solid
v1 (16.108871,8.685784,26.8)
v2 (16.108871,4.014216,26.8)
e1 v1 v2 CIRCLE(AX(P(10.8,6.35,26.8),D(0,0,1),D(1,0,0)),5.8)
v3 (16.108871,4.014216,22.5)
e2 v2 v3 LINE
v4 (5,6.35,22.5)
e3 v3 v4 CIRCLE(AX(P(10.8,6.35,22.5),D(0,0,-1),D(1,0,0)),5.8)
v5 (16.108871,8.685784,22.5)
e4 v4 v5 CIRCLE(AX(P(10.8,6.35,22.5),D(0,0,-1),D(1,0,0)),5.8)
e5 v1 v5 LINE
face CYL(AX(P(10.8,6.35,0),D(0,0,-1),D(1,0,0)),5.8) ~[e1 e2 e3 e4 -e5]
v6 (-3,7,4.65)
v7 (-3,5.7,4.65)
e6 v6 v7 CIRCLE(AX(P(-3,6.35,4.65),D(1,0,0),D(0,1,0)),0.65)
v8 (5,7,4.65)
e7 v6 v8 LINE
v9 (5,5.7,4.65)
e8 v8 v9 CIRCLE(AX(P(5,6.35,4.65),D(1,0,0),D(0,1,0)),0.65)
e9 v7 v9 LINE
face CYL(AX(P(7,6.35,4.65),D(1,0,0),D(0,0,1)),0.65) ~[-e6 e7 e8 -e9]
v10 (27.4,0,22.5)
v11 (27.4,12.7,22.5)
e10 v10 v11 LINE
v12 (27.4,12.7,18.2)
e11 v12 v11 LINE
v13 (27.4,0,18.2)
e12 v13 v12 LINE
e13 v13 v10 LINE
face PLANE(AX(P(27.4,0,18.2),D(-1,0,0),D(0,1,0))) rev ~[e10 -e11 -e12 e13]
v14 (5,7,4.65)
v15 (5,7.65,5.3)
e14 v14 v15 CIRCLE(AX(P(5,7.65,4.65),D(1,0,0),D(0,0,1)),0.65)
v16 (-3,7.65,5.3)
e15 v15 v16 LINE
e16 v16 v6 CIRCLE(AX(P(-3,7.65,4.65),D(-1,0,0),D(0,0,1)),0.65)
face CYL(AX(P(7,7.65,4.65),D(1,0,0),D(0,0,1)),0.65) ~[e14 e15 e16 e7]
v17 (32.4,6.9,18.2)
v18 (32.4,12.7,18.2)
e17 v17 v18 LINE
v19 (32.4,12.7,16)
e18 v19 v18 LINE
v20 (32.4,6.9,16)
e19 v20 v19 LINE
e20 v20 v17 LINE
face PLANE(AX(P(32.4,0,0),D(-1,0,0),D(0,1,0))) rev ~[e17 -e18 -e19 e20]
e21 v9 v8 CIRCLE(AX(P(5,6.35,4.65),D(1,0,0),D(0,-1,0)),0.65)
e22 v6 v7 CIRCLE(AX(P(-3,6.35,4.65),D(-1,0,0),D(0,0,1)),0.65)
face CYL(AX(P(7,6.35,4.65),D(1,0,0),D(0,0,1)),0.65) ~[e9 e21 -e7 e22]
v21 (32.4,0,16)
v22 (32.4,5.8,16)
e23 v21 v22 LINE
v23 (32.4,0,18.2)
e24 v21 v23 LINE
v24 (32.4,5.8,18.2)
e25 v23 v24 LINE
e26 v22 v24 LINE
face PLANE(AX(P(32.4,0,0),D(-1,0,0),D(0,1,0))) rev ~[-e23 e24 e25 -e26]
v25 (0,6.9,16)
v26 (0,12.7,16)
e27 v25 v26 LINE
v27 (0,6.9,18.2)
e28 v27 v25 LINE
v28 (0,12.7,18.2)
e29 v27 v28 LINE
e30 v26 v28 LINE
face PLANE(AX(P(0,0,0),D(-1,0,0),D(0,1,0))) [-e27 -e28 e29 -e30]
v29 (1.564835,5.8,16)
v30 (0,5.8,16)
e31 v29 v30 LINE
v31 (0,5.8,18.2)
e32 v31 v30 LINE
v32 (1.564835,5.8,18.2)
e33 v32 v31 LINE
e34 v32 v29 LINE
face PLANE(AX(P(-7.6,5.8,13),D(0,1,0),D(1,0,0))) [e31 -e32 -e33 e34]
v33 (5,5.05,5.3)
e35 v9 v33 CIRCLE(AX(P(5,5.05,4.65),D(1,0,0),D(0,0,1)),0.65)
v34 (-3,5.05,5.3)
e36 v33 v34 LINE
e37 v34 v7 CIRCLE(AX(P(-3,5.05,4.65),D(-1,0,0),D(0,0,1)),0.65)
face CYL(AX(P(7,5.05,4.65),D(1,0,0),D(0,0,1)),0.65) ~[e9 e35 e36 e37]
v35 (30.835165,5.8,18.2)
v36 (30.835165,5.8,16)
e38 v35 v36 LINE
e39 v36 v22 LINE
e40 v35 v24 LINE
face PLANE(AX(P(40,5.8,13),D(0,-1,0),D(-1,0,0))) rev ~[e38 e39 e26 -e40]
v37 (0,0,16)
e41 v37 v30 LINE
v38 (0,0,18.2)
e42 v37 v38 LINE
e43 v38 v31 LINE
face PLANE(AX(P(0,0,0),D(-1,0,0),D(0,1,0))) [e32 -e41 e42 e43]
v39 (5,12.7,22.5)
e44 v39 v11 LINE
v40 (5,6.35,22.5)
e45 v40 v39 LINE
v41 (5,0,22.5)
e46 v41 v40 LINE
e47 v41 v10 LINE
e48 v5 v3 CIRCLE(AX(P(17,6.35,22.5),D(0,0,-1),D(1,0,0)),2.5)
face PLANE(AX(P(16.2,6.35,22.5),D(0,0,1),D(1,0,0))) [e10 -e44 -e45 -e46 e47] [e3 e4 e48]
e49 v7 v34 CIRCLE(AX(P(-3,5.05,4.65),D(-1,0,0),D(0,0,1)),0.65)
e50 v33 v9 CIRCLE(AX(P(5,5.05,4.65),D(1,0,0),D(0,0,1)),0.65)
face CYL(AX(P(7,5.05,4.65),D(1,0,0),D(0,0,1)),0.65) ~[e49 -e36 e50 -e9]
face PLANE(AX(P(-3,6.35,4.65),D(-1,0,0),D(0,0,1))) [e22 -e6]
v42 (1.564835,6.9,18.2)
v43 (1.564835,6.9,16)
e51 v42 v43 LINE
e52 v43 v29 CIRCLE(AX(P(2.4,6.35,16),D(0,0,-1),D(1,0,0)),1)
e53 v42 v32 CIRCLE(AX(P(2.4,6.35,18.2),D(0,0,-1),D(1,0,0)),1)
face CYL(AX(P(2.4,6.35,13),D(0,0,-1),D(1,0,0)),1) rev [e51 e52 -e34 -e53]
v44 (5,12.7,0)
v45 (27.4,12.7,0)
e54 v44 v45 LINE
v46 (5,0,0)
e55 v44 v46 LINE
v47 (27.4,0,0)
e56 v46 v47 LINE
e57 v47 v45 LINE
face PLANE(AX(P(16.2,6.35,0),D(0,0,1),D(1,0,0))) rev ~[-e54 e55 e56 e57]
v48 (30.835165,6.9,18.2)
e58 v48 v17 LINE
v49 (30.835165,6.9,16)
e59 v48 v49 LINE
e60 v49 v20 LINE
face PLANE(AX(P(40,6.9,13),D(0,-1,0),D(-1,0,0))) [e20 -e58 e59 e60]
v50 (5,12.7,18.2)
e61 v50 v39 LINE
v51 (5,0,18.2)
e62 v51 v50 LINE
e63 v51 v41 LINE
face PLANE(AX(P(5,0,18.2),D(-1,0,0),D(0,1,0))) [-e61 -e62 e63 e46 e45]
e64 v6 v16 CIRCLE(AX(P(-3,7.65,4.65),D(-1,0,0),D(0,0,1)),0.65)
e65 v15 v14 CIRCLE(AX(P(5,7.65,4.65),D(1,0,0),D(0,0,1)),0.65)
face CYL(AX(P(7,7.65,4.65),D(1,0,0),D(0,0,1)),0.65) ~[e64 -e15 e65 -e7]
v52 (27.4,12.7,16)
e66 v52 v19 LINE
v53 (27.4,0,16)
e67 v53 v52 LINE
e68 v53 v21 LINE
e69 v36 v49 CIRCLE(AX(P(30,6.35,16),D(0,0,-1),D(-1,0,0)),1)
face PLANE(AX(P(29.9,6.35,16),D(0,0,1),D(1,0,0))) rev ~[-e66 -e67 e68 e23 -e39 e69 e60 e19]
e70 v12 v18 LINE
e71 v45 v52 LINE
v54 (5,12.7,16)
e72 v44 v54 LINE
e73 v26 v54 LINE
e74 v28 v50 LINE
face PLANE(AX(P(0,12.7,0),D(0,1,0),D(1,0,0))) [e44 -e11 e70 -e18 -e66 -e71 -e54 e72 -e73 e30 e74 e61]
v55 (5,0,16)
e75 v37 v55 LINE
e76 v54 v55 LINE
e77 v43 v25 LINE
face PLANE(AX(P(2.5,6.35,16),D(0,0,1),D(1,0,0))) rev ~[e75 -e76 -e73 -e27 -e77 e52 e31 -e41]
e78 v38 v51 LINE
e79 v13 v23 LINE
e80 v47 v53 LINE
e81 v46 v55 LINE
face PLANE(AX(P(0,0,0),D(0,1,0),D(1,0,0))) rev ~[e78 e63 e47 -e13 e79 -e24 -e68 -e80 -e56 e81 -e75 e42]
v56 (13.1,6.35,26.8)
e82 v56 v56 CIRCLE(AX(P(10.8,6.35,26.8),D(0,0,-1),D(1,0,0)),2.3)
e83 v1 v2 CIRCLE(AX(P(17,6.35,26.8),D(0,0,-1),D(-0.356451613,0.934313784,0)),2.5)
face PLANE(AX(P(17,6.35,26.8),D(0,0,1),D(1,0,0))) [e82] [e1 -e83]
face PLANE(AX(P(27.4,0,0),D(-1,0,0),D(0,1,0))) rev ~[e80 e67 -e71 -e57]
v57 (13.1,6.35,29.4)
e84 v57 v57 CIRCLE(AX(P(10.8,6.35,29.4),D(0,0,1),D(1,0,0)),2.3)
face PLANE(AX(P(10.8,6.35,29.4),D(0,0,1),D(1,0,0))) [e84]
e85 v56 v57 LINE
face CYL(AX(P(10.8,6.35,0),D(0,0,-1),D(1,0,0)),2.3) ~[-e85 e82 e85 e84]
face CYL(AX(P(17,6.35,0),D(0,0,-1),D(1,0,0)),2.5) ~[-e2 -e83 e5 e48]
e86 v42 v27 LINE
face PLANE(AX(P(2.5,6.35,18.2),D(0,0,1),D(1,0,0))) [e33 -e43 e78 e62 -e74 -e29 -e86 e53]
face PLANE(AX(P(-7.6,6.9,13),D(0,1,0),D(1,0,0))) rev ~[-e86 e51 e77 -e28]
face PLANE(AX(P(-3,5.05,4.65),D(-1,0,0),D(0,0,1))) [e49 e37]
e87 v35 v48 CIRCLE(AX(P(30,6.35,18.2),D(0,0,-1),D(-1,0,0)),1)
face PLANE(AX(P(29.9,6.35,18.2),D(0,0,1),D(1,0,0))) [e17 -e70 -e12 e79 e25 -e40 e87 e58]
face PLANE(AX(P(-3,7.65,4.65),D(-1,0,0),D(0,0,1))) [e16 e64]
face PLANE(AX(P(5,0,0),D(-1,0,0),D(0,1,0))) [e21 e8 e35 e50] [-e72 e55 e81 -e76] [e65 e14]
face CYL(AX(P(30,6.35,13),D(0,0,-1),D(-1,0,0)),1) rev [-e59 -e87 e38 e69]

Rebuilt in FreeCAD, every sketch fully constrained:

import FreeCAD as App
import Part
import Sketcher


def add_polygon(sketch, points):
    """Adds a closed chain of lines whose ends are joined by coincident constraints."""
    first, n = sketch.GeometryCount, len(points)
    for a, b in zip(points, points[1:] + points[:1]):
        sketch.addGeometry(Part.LineSegment(App.Vector(*a, 0), App.Vector(*b, 0)), False)
    for i in range(n):
        sketch.addConstraint(Sketcher.Constraint("Coincident", first + i, 2, first + (i + 1) % n, 1))

doc = App.newDocument("Part")
body = doc.addObject("PartDesign::Body", "Body")

# Sketch on XY plane
sketch1 = body.newObject("Sketcher::SketchObject", "Sketch")
sketch1.AttachmentSupport = (doc.getObject("XY_Plane"), [""])
sketch1.MapMode = "FlatFace"
sketch1.addGeometry(Part.Circle(App.Vector(0, 0, 0), App.Vector(0, 0, 1), 0.7), False)
sketch1.addConstraint([
    Sketcher.Constraint("Coincident", 0, 3, -1, 1),
    Sketcher.Constraint("Diameter", 0, 1.3),
])
pad1 = body.newObject("PartDesign::Pad", "Pad")
pad1.Profile = sketch1
pad1.Length = 10
body2 = doc.addObject("PartDesign::Body", "Body001")
doc.recompute()

body.Placement = App.Placement(App.Vector(0, 0, 0), App.Rotation(App.Vector(0, 1, 0), 270))
boolean = body2.newObject("PartDesign::Boolean", "Boolean")
boolean.Type = "Fuse"
boolean.addObjects([body])
body3 = doc.addObject("PartDesign::Body", "Body002")

# Sketch on XY plane
sketch2 = body3.newObject("Sketcher::SketchObject", "Sketch001")
sketch2.AttachmentSupport = (doc.getObject("XY_Plane002"), [""])
sketch2.MapMode = "FlatFace"
sketch2.addGeometry(Part.Circle(App.Vector(0, 0, 0), App.Vector(0, 0, 1), 0.7), False)
sketch2.addConstraint([
    Sketcher.Constraint("Coincident", 0, 3, -1, 1),
    Sketcher.Constraint("Diameter", 0, 1.3),
])
pad2 = body3.newObject("PartDesign::Pad", "Pad001")
pad2.Profile = sketch2
pad2.Length = 10
body4 = doc.addObject("PartDesign::Body", "Body003")
doc.recompute()

body3.Placement = App.Placement(App.Vector(0, 0, 0), App.Rotation(App.Vector(0, 1, 0), 270))
boolean2 = body4.newObject("PartDesign::Boolean", "Boolean001")
boolean2.Type = "Fuse"
boolean2.addObjects([body3])
body5 = doc.addObject("PartDesign::Body", "Body004")
doc.recompute()

body4.Placement = App.Placement(App.Vector(0, 1.3, 0), App.Rotation(App.Vector(0, 0, 1), 0))
boolean3 = body5.newObject("PartDesign::Boolean", "Boolean002")
boolean3.Type = "Fuse"
boolean3.addObjects([body4])
body6 = doc.addObject("PartDesign::Body", "Body005")

# Sketch on XY plane
sketch3 = body6.newObject("Sketcher::SketchObject", "Sketch002")
sketch3.AttachmentSupport = (doc.getObject("XY_Plane005"), [""])
sketch3.MapMode = "FlatFace"
sketch3.addGeometry(Part.Circle(App.Vector(0, 0, 0), App.Vector(0, 0, 1), 0.7), False)
sketch3.addConstraint([
    Sketcher.Constraint("Coincident", 0, 3, -1, 1),
    Sketcher.Constraint("Diameter", 0, 1.3),
])
pad3 = body6.newObject("PartDesign::Pad", "Pad002")
pad3.Profile = sketch3
pad3.Length = 10
body7 = doc.addObject("PartDesign::Body", "Body006")
doc.recompute()

body6.Placement = App.Placement(App.Vector(0, 0, 0), App.Rotation(App.Vector(0, 1, 0), 270))
boolean4 = body7.newObject("PartDesign::Boolean", "Boolean003")
boolean4.Type = "Fuse"
boolean4.addObjects([body6])
body8 = doc.addObject("PartDesign::Body", "Body007")
body8.AllowCompound = True
doc.recompute()

body7.Placement = App.Placement(App.Vector(0, -1.3, 0), App.Rotation(App.Vector(0, 0, 1), 0))
boolean5 = body8.newObject("PartDesign::Boolean", "Boolean004")
boolean5.Type = "Fuse"
boolean5.addObjects([body7])
doc.recompute()

boolean6 = body8.newObject("PartDesign::Boolean", "Boolean005")
boolean6.Type = "Fuse"
boolean6.addObjects([body2])
doc.recompute()

boolean7 = body8.newObject("PartDesign::Boolean", "Boolean006")
boolean7.Type = "Fuse"
boolean7.addObjects([body5])
body9 = doc.addObject("PartDesign::Body", "Body008")
body9.AllowCompound = True
doc.recompute()

body8.Placement = App.Placement(App.Vector(7, 6.35, 4.65), App.Rotation(App.Vector(0, 0, 1), 0))
boolean8 = body9.newObject("PartDesign::Boolean", "Boolean007")
boolean8.Type = "Fuse"
boolean8.addObjects([body8])
body10 = doc.addObject("PartDesign::Body", "Body009")

# Sketch on XY plane
sketch4 = body10.newObject("Sketcher::SketchObject", "Sketch003")
sketch4.AttachmentSupport = (doc.getObject("XY_Plane009"), [""])
sketch4.MapMode = "FlatFace"
sketch4.addGeometry(Part.Circle(App.Vector(0, 0, 0), App.Vector(0, 0, 1), 1), False)
sketch4.addConstraint([
    Sketcher.Constraint("Coincident", 0, 3, -1, 1),
    Sketcher.Constraint("Diameter", 0, 2.0),
])
pad4 = body10.newObject("PartDesign::Pad", "Pad003")
pad4.Profile = sketch4
pad4.Length = 10
body11 = doc.addObject("PartDesign::Body", "Body010")

# Sketch on XY plane
sketch5 = body11.newObject("Sketcher::SketchObject", "Sketch004")
sketch5.AttachmentSupport = (doc.getObject("XY_Plane010"), [""])
sketch5.MapMode = "FlatFace"
add_polygon(sketch5, [(-10, 0.6), (-10, -0.6), (0, -0.6), (0, 0.6)])  # lines 0-3
sketch5.addConstraint([
    Sketcher.Constraint("Vertical", 0),
    Sketcher.Constraint("Horizontal", 1),
    Sketcher.Constraint("Vertical", 2),
    Sketcher.Constraint("Horizontal", 3),
    Sketcher.Constraint("Symmetric", 1, 2, 2, 2, -1, 1),
    Sketcher.Constraint("DistanceX", 1, 1, 1, 2, 10.0),
    Sketcher.Constraint("DistanceY", 0, 2, 0, 1, 1.1),
])
pad5 = body11.newObject("PartDesign::Pad", "Pad004")
pad5.Profile = sketch5
pad5.Length = 10
doc.recompute()

boolean9 = body11.newObject("PartDesign::Boolean", "Boolean008")
boolean9.Type = "Fuse"
boolean9.addObjects([body10])
body12 = doc.addObject("PartDesign::Body", "Body011")
doc.recompute()

body11.Placement = App.Placement(App.Vector(2.4, 0, 0), App.Rotation(App.Vector(0, 0, 1), 0))
boolean10 = body12.newObject("PartDesign::Boolean", "Boolean009")
boolean10.Type = "Fuse"
boolean10.addObjects([body11])
body13 = doc.addObject("PartDesign::Body", "Body012")

# Sketch on XY plane
sketch6 = body13.newObject("Sketcher::SketchObject", "Sketch005")
sketch6.AttachmentSupport = (doc.getObject("XY_Plane012"), [""])
sketch6.MapMode = "FlatFace"
sketch6.addGeometry(Part.Circle(App.Vector(0, 0, 0), App.Vector(0, 0, 1), 1), False)
sketch6.addConstraint([
    Sketcher.Constraint("Coincident", 0, 3, -1, 1),
    Sketcher.Constraint("Diameter", 0, 2.0),
])
pad6 = body13.newObject("PartDesign::Pad", "Pad005")
pad6.Profile = sketch6
pad6.Length = 10
body14 = doc.addObject("PartDesign::Body", "Body013")

# Sketch on XY plane
sketch7 = body14.newObject("Sketcher::SketchObject", "Sketch006")
sketch7.AttachmentSupport = (doc.getObject("XY_Plane013"), [""])
sketch7.MapMode = "FlatFace"
add_polygon(sketch7, [(-10, 0.6), (-10, -0.6), (0, -0.6), (0, 0.6)])  # lines 0-3
sketch7.addConstraint([
    Sketcher.Constraint("Vertical", 0),
    Sketcher.Constraint("Horizontal", 1),
    Sketcher.Constraint("Vertical", 2),
    Sketcher.Constraint("Horizontal", 3),
    Sketcher.Constraint("Symmetric", 1, 2, 2, 2, -1, 1),
    Sketcher.Constraint("DistanceX", 1, 1, 1, 2, 10.0),
    Sketcher.Constraint("DistanceY", 0, 2, 0, 1, 1.1),
])
pad7 = body14.newObject("PartDesign::Pad", "Pad006")
pad7.Profile = sketch7
pad7.Length = 10
doc.recompute()

boolean11 = body14.newObject("PartDesign::Boolean", "Boolean010")
boolean11.Type = "Fuse"
boolean11.addObjects([body13])
body15 = doc.addObject("PartDesign::Body", "Body014")
body15.AllowCompound = True
doc.recompute()

body14.Placement = App.Placement(App.Vector(30, 0, 0), App.Rotation(App.Vector(0, 0, 1), 180))
boolean12 = body15.newObject("PartDesign::Boolean", "Boolean011")
boolean12.Type = "Fuse"
boolean12.addObjects([body14])
doc.recompute()

boolean13 = body15.newObject("PartDesign::Boolean", "Boolean012")
boolean13.Type = "Fuse"
boolean13.addObjects([body12])
body16 = doc.addObject("PartDesign::Body", "Body015")
body16.AllowCompound = True
doc.recompute()

body15.Placement = App.Placement(App.Vector(0, 6.35, 13), App.Rotation(App.Vector(0, 0, 1), 0))
boolean14 = body16.newObject("PartDesign::Boolean", "Boolean013")
boolean14.Type = "Fuse"
boolean14.addObjects([body15])
body17 = doc.addObject("PartDesign::Body", "Body016")

# Sketch on XY plane
sketch8 = body17.newObject("Sketcher::SketchObject", "Sketch007")
sketch8.AttachmentSupport = (doc.getObject("XY_Plane016"), [""])
sketch8.MapMode = "FlatFace"
add_polygon(sketch8, [(27, 13), (27, 0), (32, 0), (32, 13)])  # lines 0-3
sketch8.addConstraint([
    Sketcher.Constraint("Vertical", 0),
    Sketcher.Constraint("Horizontal", 1),
    Sketcher.Constraint("Vertical", 2),
    Sketcher.Constraint("Horizontal", 3),
    Sketcher.Constraint("PointOnObject", 0, 2, -1),
    Sketcher.Constraint("DistanceX", 1, 1, 1, 2, 5.0),
    Sketcher.Constraint("DistanceY", 0, 2, 0, 1, 12.7),
    Sketcher.Constraint("DistanceX", -1, 1, 0, 2, 27.4),
])
pad8 = body17.newObject("PartDesign::Pad", "Pad007")
pad8.Profile = sketch8
pad8.Length = 4.3
body18 = doc.addObject("PartDesign::Body", "Body017")
body18.AllowCompound = True

# Sketch on XY plane
sketch9 = body18.newObject("Sketcher::SketchObject", "Sketch008")
sketch9.AttachmentSupport = (doc.getObject("XY_Plane017"), [""])
sketch9.MapMode = "FlatFace"
add_polygon(sketch9, [(0, 13), (0, 0), (5, 0), (5, 13)])  # lines 0-3
sketch9.addConstraint([
    Sketcher.Constraint("Vertical", 0),
    Sketcher.Constraint("Horizontal", 1),
    Sketcher.Constraint("Vertical", 2),
    Sketcher.Constraint("Horizontal", 3),
    Sketcher.Constraint("Coincident", 0, 2, -1, 1),
    Sketcher.Constraint("DistanceX", 1, 1, 1, 2, 5.0),
    Sketcher.Constraint("DistanceY", 0, 2, 0, 1, 12.7),
])
pad9 = body18.newObject("PartDesign::Pad", "Pad008")
pad9.Profile = sketch9
pad9.Length = 4.3
doc.recompute()

boolean15 = body18.newObject("PartDesign::Boolean", "Boolean014")
boolean15.Type = "Fuse"
boolean15.addObjects([body17])
body19 = doc.addObject("PartDesign::Body", "Body018")
body19.AllowCompound = True
doc.recompute()

body18.Placement = App.Placement(App.Vector(0, 0, 18.2), App.Rotation(App.Vector(0, 0, 1), 0))
boolean16 = body19.newObject("PartDesign::Boolean", "Boolean015")
boolean16.Type = "Fuse"
boolean16.addObjects([body18])
body20 = doc.addObject("PartDesign::Body", "Body019")

# Sketch on XY plane
sketch10 = body20.newObject("Sketcher::SketchObject", "Sketch009")
sketch10.AttachmentSupport = (doc.getObject("XY_Plane019"), [""])
sketch10.MapMode = "FlatFace"
add_polygon(sketch10, [(0, 13), (0, 0), (5, 0), (5, 13)])  # lines 0-3
sketch10.addConstraint([
    Sketcher.Constraint("Vertical", 0),
    Sketcher.Constraint("Horizontal", 1),
    Sketcher.Constraint("Vertical", 2),
    Sketcher.Constraint("Horizontal", 3),
    Sketcher.Constraint("Coincident", 0, 2, -1, 1),
    Sketcher.Constraint("DistanceX", 1, 1, 1, 2, 5.0),
    Sketcher.Constraint("DistanceY", 0, 2, 0, 1, 12.7),
])
pad10 = body20.newObject("PartDesign::Pad", "Pad009")
pad10.Profile = sketch10
pad10.Length = 16
body21 = doc.addObject("PartDesign::Body", "Body020")

# Sketch on XY plane
sketch11 = body21.newObject("Sketcher::SketchObject", "Sketch010")
sketch11.AttachmentSupport = (doc.getObject("XY_Plane020"), [""])
sketch11.MapMode = "FlatFace"
add_polygon(sketch11, [(27, 13), (27, 0), (32, 0), (32, 13)])  # lines 0-3
sketch11.addConstraint([
    Sketcher.Constraint("Vertical", 0),
    Sketcher.Constraint("Horizontal", 1),
    Sketcher.Constraint("Vertical", 2),
    Sketcher.Constraint("Horizontal", 3),
    Sketcher.Constraint("PointOnObject", 0, 2, -1),
    Sketcher.Constraint("DistanceX", 1, 1, 1, 2, 5.0),
    Sketcher.Constraint("DistanceY", 0, 2, 0, 1, 12.7),
    Sketcher.Constraint("DistanceX", -1, 1, 0, 2, 27.4),
])
pad11 = body21.newObject("PartDesign::Pad", "Pad010")
pad11.Profile = sketch11
pad11.Length = 16
body22 = doc.addObject("PartDesign::Body", "Body021")

# Sketch on XY plane
sketch12 = body22.newObject("Sketcher::SketchObject", "Sketch011")
sketch12.AttachmentSupport = (doc.getObject("XY_Plane021"), [""])
sketch12.MapMode = "FlatFace"
add_polygon(sketch12, [(0, 13), (0, 0), (32, 0), (32, 13)])  # lines 0-3
sketch12.addConstraint([
    Sketcher.Constraint("Vertical", 0),
    Sketcher.Constraint("Horizontal", 1),
    Sketcher.Constraint("Vertical", 2),
    Sketcher.Constraint("Horizontal", 3),
    Sketcher.Constraint("Coincident", 0, 2, -1, 1),
    Sketcher.Constraint("DistanceX", 1, 1, 1, 2, 32.4),
    Sketcher.Constraint("DistanceY", 0, 2, 0, 1, 12.7),
])
pad12 = body22.newObject("PartDesign::Pad", "Pad011")
pad12.Profile = sketch12
pad12.Length = 22.5
doc.recompute()

boolean17 = body22.newObject("PartDesign::Boolean", "Boolean016")
boolean17.Type = "Cut"
boolean17.addObjects([body21])
doc.recompute()

boolean18 = body22.newObject("PartDesign::Boolean", "Boolean017")
boolean18.Type = "Cut"
boolean18.addObjects([body20])
doc.recompute()

boolean19 = body22.newObject("PartDesign::Boolean", "Boolean018")
boolean19.Type = "Cut"
boolean19.addObjects([body19])
doc.recompute()

boolean20 = body22.newObject("PartDesign::Boolean", "Boolean019")
boolean20.Type = "Cut"
boolean20.addObjects([body16])
body23 = doc.addObject("PartDesign::Body", "Body022")

# Sketch on XY plane
sketch13 = body23.newObject("Sketcher::SketchObject", "Sketch012")
sketch13.AttachmentSupport = (doc.getObject("XY_Plane022"), [""])
sketch13.MapMode = "FlatFace"
sketch13.addGeometry(Part.Circle(App.Vector(10.8, 6.3, 0), App.Vector(0, 0, 1), 2.3), False)
sketch13.addConstraint([
    Sketcher.Constraint("Diameter", 0, 4.6),
    Sketcher.Constraint("DistanceX", -1, 1, 0, 3, 10.8),
    Sketcher.Constraint("DistanceY", -1, 1, 0, 3, 6.35),
])
pad13 = body23.newObject("PartDesign::Pad", "Pad012")
pad13.Profile = sketch13
pad13.Length = 29.4
body24 = doc.addObject("PartDesign::Body", "Body023")

# Sketch on XY plane
sketch14 = body24.newObject("Sketcher::SketchObject", "Sketch013")
sketch14.AttachmentSupport = (doc.getObject("XY_Plane023"), [""])
sketch14.MapMode = "FlatFace"
sketch14.addGeometry(Part.Circle(App.Vector(17, 6.3, 0), App.Vector(0, 0, 1), 2.5), False)
sketch14.addConstraint([
    Sketcher.Constraint("Diameter", 0, 5.0),
    Sketcher.Constraint("DistanceX", -1, 1, 0, 3, 17.0),
    Sketcher.Constraint("DistanceY", -1, 1, 0, 3, 6.35),
])
pad14 = body24.newObject("PartDesign::Pad", "Pad013")
pad14.Profile = sketch14
pad14.Length = 26.8
body25 = doc.addObject("PartDesign::Body", "Body024")

# Sketch on XY plane
sketch15 = body25.newObject("Sketcher::SketchObject", "Sketch014")
sketch15.AttachmentSupport = (doc.getObject("XY_Plane024"), [""])
sketch15.MapMode = "FlatFace"
sketch15.addGeometry(Part.Circle(App.Vector(11, 6, 0), App.Vector(0, 0, 1), 6), False)
sketch15.addConstraint([
    Sketcher.Constraint("Diameter", 0, 11.6),
    Sketcher.Constraint("DistanceX", -1, 1, 0, 3, 10.8),
    Sketcher.Constraint("DistanceY", -1, 1, 0, 3, 6.35),
])
pad15 = body25.newObject("PartDesign::Pad", "Pad014")
pad15.Profile = sketch15
pad15.Length = 26.8
doc.recompute()

boolean21 = body25.newObject("PartDesign::Boolean", "Boolean020")
boolean21.Type = "Fuse"
boolean21.addObjects([body24])
doc.recompute()

boolean22 = body25.newObject("PartDesign::Boolean", "Boolean021")
boolean22.Type = "Fuse"
boolean22.addObjects([body23])
doc.recompute()

boolean23 = body25.newObject("PartDesign::Boolean", "Boolean022")
boolean23.Type = "Fuse"
boolean23.addObjects([body9])
doc.recompute()

boolean24 = body25.newObject("PartDesign::Boolean", "Boolean023")
boolean24.Type = "Fuse"
boolean24.addObjects([body22])

doc.recompute()
